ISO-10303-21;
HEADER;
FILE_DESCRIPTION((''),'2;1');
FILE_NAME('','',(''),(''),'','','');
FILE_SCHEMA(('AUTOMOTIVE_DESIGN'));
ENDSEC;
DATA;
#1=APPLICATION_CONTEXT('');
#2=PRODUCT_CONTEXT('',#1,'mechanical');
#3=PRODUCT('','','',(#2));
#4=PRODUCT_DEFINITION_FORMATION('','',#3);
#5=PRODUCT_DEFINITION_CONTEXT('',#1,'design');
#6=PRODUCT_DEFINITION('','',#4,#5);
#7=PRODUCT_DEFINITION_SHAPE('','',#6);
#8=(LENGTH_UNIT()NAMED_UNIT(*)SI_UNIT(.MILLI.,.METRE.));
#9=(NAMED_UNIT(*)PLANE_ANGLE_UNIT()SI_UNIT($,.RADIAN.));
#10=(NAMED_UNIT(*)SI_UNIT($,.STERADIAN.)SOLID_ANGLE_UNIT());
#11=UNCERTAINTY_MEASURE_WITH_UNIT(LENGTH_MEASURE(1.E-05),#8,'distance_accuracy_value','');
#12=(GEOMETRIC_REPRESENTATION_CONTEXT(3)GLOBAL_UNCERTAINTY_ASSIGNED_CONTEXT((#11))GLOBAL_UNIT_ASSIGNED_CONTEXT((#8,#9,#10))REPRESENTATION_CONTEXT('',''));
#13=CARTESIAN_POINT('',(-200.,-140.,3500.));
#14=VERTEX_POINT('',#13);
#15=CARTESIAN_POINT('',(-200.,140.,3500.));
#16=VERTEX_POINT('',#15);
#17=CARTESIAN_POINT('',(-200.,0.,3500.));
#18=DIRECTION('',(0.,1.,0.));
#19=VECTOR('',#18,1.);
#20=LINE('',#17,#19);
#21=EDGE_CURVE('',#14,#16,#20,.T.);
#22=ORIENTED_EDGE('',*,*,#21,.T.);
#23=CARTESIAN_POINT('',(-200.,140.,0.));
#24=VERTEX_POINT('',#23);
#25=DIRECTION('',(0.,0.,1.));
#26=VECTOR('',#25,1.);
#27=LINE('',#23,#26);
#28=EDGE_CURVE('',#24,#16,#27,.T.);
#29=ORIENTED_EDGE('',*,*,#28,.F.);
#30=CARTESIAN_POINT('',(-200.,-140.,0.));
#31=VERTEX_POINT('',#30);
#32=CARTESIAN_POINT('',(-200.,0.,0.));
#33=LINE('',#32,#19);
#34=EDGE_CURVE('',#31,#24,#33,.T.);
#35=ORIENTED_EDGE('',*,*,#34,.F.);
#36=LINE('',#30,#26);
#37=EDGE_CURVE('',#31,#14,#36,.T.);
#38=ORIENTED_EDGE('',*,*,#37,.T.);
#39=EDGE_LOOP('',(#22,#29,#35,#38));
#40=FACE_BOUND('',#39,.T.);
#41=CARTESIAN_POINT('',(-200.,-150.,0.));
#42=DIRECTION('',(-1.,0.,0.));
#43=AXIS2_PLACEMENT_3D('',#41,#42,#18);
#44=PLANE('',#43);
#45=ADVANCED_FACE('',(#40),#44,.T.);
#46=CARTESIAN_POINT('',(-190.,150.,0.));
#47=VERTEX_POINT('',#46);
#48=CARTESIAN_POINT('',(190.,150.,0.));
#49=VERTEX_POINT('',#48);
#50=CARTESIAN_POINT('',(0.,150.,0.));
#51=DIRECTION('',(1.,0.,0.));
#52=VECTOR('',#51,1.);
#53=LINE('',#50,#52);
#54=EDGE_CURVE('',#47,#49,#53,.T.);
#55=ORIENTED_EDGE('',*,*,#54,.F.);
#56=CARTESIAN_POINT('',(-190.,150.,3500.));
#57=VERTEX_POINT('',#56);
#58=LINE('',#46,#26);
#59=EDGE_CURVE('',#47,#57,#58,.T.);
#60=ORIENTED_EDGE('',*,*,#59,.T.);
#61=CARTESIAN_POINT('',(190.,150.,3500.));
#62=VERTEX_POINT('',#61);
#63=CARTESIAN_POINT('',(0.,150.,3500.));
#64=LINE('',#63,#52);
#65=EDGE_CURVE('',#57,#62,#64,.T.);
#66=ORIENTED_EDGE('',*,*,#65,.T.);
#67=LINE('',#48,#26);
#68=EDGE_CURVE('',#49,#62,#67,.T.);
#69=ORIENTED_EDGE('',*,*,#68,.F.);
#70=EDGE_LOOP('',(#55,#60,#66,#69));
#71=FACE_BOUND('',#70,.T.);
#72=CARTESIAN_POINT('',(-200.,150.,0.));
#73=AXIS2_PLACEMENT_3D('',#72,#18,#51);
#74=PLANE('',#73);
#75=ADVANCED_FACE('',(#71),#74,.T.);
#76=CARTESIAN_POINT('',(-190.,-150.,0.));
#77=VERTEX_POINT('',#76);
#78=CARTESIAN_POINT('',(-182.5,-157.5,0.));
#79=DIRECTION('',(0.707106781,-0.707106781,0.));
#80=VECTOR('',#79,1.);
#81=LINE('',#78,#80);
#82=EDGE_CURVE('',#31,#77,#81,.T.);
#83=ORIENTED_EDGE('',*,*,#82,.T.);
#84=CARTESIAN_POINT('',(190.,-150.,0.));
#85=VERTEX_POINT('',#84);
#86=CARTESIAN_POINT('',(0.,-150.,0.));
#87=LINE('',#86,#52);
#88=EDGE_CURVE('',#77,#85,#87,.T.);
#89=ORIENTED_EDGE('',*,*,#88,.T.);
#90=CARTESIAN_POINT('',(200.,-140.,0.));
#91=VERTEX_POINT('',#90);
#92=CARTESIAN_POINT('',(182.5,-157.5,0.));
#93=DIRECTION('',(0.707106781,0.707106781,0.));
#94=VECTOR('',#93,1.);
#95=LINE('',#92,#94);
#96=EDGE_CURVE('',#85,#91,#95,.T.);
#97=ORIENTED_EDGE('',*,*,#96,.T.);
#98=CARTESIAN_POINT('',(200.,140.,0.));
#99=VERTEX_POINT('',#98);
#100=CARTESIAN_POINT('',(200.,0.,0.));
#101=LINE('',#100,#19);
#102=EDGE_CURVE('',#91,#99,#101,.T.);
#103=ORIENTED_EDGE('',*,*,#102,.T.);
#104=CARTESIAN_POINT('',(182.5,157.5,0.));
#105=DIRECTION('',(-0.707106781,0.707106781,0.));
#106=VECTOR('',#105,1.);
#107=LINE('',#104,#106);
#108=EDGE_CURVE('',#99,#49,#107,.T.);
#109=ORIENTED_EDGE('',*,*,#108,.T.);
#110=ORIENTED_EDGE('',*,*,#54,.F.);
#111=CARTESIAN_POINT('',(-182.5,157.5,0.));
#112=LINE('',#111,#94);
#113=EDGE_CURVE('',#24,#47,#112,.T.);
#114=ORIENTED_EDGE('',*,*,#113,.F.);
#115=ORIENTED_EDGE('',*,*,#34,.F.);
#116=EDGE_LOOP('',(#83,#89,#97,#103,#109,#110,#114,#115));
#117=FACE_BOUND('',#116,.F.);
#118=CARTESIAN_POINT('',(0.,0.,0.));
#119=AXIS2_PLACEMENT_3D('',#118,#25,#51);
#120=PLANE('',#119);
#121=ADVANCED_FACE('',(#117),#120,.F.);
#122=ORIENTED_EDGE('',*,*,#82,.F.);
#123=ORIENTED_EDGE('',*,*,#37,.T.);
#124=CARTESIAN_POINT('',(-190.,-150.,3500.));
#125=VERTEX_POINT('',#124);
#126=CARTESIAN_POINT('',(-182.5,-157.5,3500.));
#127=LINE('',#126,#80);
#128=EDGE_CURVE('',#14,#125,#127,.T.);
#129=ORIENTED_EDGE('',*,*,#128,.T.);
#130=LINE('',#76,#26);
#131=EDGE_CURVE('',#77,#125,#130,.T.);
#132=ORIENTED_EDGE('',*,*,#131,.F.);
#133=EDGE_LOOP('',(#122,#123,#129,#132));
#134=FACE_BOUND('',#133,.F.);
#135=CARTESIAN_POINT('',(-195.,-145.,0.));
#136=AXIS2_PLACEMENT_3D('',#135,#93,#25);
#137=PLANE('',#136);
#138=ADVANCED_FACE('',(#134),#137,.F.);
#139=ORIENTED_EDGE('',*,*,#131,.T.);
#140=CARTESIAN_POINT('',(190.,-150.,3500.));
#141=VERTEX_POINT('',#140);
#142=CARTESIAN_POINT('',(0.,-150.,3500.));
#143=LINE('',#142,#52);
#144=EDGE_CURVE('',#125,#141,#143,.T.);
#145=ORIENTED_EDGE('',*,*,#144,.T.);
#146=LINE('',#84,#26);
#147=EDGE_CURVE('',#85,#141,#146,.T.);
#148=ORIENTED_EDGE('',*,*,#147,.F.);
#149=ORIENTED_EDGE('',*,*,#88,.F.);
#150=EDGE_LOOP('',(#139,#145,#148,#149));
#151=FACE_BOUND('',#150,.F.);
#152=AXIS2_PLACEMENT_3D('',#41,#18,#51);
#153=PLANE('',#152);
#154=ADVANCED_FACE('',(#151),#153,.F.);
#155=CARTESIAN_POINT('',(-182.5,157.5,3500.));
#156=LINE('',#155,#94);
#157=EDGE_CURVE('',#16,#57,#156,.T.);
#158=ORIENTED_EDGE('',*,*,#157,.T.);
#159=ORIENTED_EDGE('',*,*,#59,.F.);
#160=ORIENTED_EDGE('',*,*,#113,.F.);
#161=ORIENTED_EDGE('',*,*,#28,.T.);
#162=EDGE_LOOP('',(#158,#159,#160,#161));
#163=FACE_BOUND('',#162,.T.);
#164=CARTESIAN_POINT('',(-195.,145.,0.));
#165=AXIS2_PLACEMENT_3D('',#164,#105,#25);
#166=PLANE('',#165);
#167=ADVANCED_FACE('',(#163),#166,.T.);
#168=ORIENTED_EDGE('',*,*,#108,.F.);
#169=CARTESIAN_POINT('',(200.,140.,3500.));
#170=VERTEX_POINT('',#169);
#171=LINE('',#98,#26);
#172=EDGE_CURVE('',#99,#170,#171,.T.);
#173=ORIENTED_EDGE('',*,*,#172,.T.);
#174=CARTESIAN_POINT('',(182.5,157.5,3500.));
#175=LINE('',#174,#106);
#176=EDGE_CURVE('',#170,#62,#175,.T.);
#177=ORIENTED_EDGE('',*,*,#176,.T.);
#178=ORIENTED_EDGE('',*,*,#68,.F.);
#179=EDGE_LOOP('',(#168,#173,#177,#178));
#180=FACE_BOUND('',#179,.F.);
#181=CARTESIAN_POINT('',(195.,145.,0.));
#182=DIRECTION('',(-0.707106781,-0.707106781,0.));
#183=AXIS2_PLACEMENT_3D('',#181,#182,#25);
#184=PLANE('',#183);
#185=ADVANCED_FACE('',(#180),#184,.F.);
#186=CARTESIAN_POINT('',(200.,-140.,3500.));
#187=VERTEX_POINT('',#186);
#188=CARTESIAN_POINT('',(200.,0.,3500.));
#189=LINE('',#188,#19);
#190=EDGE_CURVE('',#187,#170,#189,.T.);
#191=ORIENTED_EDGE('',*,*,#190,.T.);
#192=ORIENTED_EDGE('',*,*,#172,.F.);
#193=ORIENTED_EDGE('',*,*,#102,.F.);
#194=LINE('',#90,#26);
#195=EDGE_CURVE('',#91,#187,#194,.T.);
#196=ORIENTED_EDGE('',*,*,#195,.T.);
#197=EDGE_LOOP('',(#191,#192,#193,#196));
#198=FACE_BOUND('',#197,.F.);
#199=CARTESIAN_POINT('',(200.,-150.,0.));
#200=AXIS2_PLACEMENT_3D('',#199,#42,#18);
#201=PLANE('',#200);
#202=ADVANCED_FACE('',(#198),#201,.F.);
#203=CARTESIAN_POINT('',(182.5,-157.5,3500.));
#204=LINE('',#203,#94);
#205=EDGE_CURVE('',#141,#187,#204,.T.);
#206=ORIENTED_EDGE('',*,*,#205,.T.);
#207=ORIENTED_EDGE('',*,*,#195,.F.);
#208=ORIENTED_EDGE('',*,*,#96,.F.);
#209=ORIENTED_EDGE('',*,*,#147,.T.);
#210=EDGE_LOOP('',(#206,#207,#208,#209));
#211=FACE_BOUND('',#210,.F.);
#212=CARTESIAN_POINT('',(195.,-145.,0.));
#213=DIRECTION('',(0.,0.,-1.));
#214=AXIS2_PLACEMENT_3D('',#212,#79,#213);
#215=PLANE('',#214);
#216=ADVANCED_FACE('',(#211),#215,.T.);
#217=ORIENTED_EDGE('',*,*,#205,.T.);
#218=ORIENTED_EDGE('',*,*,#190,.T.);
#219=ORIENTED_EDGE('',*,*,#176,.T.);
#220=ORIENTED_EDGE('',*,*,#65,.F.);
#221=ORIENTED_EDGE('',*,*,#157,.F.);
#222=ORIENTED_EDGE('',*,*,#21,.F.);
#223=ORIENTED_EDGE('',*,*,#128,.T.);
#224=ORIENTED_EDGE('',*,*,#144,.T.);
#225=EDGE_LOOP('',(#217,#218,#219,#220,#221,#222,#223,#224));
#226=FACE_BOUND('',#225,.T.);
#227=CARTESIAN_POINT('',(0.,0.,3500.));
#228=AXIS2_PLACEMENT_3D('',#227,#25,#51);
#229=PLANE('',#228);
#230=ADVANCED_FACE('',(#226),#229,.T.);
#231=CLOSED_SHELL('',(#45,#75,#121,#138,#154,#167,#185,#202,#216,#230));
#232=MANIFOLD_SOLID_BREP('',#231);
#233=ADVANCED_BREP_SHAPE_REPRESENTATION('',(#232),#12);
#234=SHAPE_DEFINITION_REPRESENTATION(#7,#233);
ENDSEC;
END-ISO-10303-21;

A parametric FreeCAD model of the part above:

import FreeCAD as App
import Part
import Sketcher
from FreeCAD import Vector


def edges_at(feature, points):
    """Names of the edges that pass closest to the given points."""
    edges = feature.Shape.Edges
    near = lambda p: min(range(len(edges)), key=lambda i: edges[i].distToShape(Part.Vertex(*p))[0])
    return sorted({f"Edge{near(p) + 1}" for p in points})


def add_polygon(sketch, points):
    """Adds a closed chain of lines whose ends are joined by coincident constraints."""
    first, n = sketch.GeometryCount, len(points)
    for a, b in zip(points, points[1:] + points[:1]):
        sketch.addGeometry(Part.LineSegment(App.Vector(*a, 0), App.Vector(*b, 0)), False)
    for i in range(n):
        sketch.addConstraint(Sketcher.Constraint("Coincident", first + i, 2, first + (i + 1) % n, 1))

doc = App.newDocument("Part")
body = doc.addObject("PartDesign::Body", "Body")

# Sketch on XY plane
sketch1 = doc.addObject("Sketcher::SketchObject", "Sketch")
body.addObject(sketch1)
sketch1.AttachmentSupport = (doc.XY_Plane, [""])
sketch1.MapMode = "FlatFace"
add_polygon(sketch1, [(-200, 150), (-200, -150), (200, -150), (200, 150)])  # lines 0-3
sketch1.addConstraint([
    Sketcher.Constraint("Vertical", 0),
    Sketcher.Constraint("Horizontal", 1),
    Sketcher.Constraint("Vertical", 2),
    Sketcher.Constraint("Horizontal", 3),
    Sketcher.Constraint("Symmetric", 0, 2, 2, 2, -1, 1),
    Sketcher.Constraint("DistanceX", 1, 1, 1, 2, 400.0),
    Sketcher.Constraint("DistanceY", 0, 2, 0, 1, 300.0),
])
pad1 = doc.addObject("PartDesign::Pad", "Pad")
body.addObject(pad1)
pad1.Profile = sketch1
pad1.Length = 3500
doc.recompute()

chamfer = doc.addObject("PartDesign::Chamfer", "Chamfer")
body.addObject(chamfer)
chamfer.Base = (pad1, edges_at(pad1, [
    (200, -150, 1750),
    (-200, -150, 1750),
    (200, 150, 1750),
    (-200, 150, 1750),
]))
chamfer.Size = 10

doc.recompute()
